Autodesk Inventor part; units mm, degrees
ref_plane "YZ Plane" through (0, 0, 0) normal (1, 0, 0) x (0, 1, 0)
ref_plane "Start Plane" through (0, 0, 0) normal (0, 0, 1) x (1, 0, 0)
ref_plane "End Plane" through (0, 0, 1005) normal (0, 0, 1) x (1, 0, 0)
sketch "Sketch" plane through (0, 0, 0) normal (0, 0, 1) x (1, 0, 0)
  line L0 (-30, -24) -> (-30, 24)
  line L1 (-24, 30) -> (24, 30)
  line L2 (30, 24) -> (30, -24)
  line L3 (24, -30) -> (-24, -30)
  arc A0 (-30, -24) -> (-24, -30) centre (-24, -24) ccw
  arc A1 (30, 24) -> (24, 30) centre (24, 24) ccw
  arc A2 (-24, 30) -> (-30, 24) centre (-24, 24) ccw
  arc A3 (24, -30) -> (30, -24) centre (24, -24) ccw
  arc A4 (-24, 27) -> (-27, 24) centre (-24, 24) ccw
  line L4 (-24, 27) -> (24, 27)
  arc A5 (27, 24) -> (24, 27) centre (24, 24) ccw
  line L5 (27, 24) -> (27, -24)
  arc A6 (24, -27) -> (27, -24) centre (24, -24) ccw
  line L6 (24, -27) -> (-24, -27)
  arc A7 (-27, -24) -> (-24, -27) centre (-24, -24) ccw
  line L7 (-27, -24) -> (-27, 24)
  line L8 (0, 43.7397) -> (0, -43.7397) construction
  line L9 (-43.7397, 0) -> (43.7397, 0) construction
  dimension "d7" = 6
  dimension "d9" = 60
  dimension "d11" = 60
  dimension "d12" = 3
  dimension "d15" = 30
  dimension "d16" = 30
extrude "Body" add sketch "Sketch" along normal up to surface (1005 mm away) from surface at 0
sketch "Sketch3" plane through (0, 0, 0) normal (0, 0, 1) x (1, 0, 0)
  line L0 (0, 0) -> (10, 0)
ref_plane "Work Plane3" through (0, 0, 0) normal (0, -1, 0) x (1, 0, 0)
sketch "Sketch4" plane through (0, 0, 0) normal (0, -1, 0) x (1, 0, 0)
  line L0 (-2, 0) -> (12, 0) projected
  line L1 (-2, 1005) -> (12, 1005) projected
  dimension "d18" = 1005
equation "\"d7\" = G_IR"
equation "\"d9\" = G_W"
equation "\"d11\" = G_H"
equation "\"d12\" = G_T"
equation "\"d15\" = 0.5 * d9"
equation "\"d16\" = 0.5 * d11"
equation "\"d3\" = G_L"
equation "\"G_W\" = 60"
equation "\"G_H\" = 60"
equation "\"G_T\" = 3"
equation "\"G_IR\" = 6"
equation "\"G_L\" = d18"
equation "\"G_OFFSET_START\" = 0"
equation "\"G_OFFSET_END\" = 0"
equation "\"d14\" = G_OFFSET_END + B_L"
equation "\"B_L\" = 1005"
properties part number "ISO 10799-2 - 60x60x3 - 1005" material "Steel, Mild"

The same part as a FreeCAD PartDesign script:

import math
import FreeCAD as App
import Part
import Sketcher

V = App.Vector

doc = App.newDocument("Part")
body = doc.addObject("PartDesign::Body", "Body")

sketch1 = body.newObject("Sketcher::SketchObject", "Sketch")
sketch1.AttachmentSupport = (doc.getObject("XY_Plane"), [""])
sketch1.MapMode = "FlatFace"
sketch1.addGeometry([
    Part.LineSegment(V(-30, 24, 0), V(-30, -24, 0)),
    Part.ArcOfCircle(Part.Circle(V(-24, -24, 0), V(0, 0, 1), 6), math.radians(180), math.radians(270)),
    Part.LineSegment(V(-24, -30, 0), V(24, -30, 0)),
    Part.ArcOfCircle(Part.Circle(V(24, -24, 0), V(0, 0, 1), 6), math.radians(-90), math.radians(0)),
    Part.LineSegment(V(30, -24, 0), V(30, 24, 0)),
    Part.ArcOfCircle(Part.Circle(V(24, 24, 0), V(0, 0, 1), 6), math.radians(0), math.radians(90)),
    Part.LineSegment(V(24, 30, 0), V(-24, 30, 0)),
    Part.ArcOfCircle(Part.Circle(V(-24, 24, 0), V(0, 0, 1), 6), math.radians(90), math.radians(180)),
    Part.ArcOfCircle(Part.Circle(V(-24, 24, 0), V(0, 0, 1), 3), math.radians(90), math.radians(180)),
    Part.LineSegment(V(-24, 27, 0), V(24, 27, 0)),
    Part.ArcOfCircle(Part.Circle(V(24, 24, 0), V(0, 0, 1), 3), math.radians(0), math.radians(90)),
    Part.LineSegment(V(27, 24, 0), V(27, -24, 0)),
    Part.ArcOfCircle(Part.Circle(V(24, -24, 0), V(0, 0, 1), 3), math.radians(-90), math.radians(0)),
    Part.LineSegment(V(24, -27, 0), V(-24, -27, 0)),
    Part.ArcOfCircle(Part.Circle(V(-24, -24, 0), V(0, 0, 1), 3), math.radians(180), math.radians(270)),
    Part.LineSegment(V(-27, -24, 0), V(-27, 24, 0)),
], False)
sketch1.addConstraint([
    Sketcher.Constraint("Tangent", 0, 2, 1, 1),
    Sketcher.Constraint("Tangent", 1, 2, 2, 1),
    Sketcher.Constraint("Tangent", 2, 2, 3, 1),
    Sketcher.Constraint("Tangent", 3, 2, 4, 1),
    Sketcher.Constraint("Tangent", 4, 2, 5, 1),
    Sketcher.Constraint("Tangent", 5, 2, 6, 1),
    Sketcher.Constraint("Tangent", 6, 2, 7, 1),
    Sketcher.Constraint("Tangent", 7, 2, 0, 1),
    Sketcher.Constraint("Tangent", 8, 1, 9, 1),
    Sketcher.Constraint("Tangent", 9, 2, 10, 2),
    Sketcher.Constraint("Tangent", 10, 1, 11, 1),
    Sketcher.Constraint("Tangent", 11, 2, 12, 2),
    Sketcher.Constraint("Tangent", 12, 1, 13, 1),
    Sketcher.Constraint("Tangent", 13, 2, 14, 2),
    Sketcher.Constraint("Tangent", 14, 1, 15, 1),
    Sketcher.Constraint("Tangent", 15, 2, 8, 2),
    Sketcher.Constraint("Vertical", 0),
    Sketcher.Constraint("Horizontal", 2),
    Sketcher.Constraint("Vertical", 4),
    Sketcher.Constraint("Horizontal", 6),
    Sketcher.Constraint("Horizontal", 9),
    Sketcher.Constraint("Vertical", 11),
    Sketcher.Constraint("Horizontal", 13),
    Sketcher.Constraint("Vertical", 15),
    Sketcher.Constraint("Coincident", 8, 3, 7, 3),
    Sketcher.Constraint("Coincident", 10, 3, 5, 3),
    Sketcher.Constraint("Coincident", 12, 3, 3, 3),
    Sketcher.Constraint("Equal", 1, 3),
    Sketcher.Constraint("Equal", 3, 5),
    Sketcher.Constraint("Equal", 5, 7),
    Sketcher.Constraint("Equal", 12, 14),
    Sketcher.Constraint("Symmetric", 1, 3, 5, 3, -1, 1),
    Sketcher.Constraint("Equal", 13, 0),
    Sketcher.Constraint("Radius", 1, 6.0),
    Sketcher.Constraint("Radius", 8, 3.0),
    Sketcher.Constraint("DistanceX", 0, 2, -1, 1, 30.0),
])
pad1 = body.newObject("PartDesign::Pad", "Pad")
pad1.Profile = sketch1
pad1.Length = 1005

doc.recompute()
